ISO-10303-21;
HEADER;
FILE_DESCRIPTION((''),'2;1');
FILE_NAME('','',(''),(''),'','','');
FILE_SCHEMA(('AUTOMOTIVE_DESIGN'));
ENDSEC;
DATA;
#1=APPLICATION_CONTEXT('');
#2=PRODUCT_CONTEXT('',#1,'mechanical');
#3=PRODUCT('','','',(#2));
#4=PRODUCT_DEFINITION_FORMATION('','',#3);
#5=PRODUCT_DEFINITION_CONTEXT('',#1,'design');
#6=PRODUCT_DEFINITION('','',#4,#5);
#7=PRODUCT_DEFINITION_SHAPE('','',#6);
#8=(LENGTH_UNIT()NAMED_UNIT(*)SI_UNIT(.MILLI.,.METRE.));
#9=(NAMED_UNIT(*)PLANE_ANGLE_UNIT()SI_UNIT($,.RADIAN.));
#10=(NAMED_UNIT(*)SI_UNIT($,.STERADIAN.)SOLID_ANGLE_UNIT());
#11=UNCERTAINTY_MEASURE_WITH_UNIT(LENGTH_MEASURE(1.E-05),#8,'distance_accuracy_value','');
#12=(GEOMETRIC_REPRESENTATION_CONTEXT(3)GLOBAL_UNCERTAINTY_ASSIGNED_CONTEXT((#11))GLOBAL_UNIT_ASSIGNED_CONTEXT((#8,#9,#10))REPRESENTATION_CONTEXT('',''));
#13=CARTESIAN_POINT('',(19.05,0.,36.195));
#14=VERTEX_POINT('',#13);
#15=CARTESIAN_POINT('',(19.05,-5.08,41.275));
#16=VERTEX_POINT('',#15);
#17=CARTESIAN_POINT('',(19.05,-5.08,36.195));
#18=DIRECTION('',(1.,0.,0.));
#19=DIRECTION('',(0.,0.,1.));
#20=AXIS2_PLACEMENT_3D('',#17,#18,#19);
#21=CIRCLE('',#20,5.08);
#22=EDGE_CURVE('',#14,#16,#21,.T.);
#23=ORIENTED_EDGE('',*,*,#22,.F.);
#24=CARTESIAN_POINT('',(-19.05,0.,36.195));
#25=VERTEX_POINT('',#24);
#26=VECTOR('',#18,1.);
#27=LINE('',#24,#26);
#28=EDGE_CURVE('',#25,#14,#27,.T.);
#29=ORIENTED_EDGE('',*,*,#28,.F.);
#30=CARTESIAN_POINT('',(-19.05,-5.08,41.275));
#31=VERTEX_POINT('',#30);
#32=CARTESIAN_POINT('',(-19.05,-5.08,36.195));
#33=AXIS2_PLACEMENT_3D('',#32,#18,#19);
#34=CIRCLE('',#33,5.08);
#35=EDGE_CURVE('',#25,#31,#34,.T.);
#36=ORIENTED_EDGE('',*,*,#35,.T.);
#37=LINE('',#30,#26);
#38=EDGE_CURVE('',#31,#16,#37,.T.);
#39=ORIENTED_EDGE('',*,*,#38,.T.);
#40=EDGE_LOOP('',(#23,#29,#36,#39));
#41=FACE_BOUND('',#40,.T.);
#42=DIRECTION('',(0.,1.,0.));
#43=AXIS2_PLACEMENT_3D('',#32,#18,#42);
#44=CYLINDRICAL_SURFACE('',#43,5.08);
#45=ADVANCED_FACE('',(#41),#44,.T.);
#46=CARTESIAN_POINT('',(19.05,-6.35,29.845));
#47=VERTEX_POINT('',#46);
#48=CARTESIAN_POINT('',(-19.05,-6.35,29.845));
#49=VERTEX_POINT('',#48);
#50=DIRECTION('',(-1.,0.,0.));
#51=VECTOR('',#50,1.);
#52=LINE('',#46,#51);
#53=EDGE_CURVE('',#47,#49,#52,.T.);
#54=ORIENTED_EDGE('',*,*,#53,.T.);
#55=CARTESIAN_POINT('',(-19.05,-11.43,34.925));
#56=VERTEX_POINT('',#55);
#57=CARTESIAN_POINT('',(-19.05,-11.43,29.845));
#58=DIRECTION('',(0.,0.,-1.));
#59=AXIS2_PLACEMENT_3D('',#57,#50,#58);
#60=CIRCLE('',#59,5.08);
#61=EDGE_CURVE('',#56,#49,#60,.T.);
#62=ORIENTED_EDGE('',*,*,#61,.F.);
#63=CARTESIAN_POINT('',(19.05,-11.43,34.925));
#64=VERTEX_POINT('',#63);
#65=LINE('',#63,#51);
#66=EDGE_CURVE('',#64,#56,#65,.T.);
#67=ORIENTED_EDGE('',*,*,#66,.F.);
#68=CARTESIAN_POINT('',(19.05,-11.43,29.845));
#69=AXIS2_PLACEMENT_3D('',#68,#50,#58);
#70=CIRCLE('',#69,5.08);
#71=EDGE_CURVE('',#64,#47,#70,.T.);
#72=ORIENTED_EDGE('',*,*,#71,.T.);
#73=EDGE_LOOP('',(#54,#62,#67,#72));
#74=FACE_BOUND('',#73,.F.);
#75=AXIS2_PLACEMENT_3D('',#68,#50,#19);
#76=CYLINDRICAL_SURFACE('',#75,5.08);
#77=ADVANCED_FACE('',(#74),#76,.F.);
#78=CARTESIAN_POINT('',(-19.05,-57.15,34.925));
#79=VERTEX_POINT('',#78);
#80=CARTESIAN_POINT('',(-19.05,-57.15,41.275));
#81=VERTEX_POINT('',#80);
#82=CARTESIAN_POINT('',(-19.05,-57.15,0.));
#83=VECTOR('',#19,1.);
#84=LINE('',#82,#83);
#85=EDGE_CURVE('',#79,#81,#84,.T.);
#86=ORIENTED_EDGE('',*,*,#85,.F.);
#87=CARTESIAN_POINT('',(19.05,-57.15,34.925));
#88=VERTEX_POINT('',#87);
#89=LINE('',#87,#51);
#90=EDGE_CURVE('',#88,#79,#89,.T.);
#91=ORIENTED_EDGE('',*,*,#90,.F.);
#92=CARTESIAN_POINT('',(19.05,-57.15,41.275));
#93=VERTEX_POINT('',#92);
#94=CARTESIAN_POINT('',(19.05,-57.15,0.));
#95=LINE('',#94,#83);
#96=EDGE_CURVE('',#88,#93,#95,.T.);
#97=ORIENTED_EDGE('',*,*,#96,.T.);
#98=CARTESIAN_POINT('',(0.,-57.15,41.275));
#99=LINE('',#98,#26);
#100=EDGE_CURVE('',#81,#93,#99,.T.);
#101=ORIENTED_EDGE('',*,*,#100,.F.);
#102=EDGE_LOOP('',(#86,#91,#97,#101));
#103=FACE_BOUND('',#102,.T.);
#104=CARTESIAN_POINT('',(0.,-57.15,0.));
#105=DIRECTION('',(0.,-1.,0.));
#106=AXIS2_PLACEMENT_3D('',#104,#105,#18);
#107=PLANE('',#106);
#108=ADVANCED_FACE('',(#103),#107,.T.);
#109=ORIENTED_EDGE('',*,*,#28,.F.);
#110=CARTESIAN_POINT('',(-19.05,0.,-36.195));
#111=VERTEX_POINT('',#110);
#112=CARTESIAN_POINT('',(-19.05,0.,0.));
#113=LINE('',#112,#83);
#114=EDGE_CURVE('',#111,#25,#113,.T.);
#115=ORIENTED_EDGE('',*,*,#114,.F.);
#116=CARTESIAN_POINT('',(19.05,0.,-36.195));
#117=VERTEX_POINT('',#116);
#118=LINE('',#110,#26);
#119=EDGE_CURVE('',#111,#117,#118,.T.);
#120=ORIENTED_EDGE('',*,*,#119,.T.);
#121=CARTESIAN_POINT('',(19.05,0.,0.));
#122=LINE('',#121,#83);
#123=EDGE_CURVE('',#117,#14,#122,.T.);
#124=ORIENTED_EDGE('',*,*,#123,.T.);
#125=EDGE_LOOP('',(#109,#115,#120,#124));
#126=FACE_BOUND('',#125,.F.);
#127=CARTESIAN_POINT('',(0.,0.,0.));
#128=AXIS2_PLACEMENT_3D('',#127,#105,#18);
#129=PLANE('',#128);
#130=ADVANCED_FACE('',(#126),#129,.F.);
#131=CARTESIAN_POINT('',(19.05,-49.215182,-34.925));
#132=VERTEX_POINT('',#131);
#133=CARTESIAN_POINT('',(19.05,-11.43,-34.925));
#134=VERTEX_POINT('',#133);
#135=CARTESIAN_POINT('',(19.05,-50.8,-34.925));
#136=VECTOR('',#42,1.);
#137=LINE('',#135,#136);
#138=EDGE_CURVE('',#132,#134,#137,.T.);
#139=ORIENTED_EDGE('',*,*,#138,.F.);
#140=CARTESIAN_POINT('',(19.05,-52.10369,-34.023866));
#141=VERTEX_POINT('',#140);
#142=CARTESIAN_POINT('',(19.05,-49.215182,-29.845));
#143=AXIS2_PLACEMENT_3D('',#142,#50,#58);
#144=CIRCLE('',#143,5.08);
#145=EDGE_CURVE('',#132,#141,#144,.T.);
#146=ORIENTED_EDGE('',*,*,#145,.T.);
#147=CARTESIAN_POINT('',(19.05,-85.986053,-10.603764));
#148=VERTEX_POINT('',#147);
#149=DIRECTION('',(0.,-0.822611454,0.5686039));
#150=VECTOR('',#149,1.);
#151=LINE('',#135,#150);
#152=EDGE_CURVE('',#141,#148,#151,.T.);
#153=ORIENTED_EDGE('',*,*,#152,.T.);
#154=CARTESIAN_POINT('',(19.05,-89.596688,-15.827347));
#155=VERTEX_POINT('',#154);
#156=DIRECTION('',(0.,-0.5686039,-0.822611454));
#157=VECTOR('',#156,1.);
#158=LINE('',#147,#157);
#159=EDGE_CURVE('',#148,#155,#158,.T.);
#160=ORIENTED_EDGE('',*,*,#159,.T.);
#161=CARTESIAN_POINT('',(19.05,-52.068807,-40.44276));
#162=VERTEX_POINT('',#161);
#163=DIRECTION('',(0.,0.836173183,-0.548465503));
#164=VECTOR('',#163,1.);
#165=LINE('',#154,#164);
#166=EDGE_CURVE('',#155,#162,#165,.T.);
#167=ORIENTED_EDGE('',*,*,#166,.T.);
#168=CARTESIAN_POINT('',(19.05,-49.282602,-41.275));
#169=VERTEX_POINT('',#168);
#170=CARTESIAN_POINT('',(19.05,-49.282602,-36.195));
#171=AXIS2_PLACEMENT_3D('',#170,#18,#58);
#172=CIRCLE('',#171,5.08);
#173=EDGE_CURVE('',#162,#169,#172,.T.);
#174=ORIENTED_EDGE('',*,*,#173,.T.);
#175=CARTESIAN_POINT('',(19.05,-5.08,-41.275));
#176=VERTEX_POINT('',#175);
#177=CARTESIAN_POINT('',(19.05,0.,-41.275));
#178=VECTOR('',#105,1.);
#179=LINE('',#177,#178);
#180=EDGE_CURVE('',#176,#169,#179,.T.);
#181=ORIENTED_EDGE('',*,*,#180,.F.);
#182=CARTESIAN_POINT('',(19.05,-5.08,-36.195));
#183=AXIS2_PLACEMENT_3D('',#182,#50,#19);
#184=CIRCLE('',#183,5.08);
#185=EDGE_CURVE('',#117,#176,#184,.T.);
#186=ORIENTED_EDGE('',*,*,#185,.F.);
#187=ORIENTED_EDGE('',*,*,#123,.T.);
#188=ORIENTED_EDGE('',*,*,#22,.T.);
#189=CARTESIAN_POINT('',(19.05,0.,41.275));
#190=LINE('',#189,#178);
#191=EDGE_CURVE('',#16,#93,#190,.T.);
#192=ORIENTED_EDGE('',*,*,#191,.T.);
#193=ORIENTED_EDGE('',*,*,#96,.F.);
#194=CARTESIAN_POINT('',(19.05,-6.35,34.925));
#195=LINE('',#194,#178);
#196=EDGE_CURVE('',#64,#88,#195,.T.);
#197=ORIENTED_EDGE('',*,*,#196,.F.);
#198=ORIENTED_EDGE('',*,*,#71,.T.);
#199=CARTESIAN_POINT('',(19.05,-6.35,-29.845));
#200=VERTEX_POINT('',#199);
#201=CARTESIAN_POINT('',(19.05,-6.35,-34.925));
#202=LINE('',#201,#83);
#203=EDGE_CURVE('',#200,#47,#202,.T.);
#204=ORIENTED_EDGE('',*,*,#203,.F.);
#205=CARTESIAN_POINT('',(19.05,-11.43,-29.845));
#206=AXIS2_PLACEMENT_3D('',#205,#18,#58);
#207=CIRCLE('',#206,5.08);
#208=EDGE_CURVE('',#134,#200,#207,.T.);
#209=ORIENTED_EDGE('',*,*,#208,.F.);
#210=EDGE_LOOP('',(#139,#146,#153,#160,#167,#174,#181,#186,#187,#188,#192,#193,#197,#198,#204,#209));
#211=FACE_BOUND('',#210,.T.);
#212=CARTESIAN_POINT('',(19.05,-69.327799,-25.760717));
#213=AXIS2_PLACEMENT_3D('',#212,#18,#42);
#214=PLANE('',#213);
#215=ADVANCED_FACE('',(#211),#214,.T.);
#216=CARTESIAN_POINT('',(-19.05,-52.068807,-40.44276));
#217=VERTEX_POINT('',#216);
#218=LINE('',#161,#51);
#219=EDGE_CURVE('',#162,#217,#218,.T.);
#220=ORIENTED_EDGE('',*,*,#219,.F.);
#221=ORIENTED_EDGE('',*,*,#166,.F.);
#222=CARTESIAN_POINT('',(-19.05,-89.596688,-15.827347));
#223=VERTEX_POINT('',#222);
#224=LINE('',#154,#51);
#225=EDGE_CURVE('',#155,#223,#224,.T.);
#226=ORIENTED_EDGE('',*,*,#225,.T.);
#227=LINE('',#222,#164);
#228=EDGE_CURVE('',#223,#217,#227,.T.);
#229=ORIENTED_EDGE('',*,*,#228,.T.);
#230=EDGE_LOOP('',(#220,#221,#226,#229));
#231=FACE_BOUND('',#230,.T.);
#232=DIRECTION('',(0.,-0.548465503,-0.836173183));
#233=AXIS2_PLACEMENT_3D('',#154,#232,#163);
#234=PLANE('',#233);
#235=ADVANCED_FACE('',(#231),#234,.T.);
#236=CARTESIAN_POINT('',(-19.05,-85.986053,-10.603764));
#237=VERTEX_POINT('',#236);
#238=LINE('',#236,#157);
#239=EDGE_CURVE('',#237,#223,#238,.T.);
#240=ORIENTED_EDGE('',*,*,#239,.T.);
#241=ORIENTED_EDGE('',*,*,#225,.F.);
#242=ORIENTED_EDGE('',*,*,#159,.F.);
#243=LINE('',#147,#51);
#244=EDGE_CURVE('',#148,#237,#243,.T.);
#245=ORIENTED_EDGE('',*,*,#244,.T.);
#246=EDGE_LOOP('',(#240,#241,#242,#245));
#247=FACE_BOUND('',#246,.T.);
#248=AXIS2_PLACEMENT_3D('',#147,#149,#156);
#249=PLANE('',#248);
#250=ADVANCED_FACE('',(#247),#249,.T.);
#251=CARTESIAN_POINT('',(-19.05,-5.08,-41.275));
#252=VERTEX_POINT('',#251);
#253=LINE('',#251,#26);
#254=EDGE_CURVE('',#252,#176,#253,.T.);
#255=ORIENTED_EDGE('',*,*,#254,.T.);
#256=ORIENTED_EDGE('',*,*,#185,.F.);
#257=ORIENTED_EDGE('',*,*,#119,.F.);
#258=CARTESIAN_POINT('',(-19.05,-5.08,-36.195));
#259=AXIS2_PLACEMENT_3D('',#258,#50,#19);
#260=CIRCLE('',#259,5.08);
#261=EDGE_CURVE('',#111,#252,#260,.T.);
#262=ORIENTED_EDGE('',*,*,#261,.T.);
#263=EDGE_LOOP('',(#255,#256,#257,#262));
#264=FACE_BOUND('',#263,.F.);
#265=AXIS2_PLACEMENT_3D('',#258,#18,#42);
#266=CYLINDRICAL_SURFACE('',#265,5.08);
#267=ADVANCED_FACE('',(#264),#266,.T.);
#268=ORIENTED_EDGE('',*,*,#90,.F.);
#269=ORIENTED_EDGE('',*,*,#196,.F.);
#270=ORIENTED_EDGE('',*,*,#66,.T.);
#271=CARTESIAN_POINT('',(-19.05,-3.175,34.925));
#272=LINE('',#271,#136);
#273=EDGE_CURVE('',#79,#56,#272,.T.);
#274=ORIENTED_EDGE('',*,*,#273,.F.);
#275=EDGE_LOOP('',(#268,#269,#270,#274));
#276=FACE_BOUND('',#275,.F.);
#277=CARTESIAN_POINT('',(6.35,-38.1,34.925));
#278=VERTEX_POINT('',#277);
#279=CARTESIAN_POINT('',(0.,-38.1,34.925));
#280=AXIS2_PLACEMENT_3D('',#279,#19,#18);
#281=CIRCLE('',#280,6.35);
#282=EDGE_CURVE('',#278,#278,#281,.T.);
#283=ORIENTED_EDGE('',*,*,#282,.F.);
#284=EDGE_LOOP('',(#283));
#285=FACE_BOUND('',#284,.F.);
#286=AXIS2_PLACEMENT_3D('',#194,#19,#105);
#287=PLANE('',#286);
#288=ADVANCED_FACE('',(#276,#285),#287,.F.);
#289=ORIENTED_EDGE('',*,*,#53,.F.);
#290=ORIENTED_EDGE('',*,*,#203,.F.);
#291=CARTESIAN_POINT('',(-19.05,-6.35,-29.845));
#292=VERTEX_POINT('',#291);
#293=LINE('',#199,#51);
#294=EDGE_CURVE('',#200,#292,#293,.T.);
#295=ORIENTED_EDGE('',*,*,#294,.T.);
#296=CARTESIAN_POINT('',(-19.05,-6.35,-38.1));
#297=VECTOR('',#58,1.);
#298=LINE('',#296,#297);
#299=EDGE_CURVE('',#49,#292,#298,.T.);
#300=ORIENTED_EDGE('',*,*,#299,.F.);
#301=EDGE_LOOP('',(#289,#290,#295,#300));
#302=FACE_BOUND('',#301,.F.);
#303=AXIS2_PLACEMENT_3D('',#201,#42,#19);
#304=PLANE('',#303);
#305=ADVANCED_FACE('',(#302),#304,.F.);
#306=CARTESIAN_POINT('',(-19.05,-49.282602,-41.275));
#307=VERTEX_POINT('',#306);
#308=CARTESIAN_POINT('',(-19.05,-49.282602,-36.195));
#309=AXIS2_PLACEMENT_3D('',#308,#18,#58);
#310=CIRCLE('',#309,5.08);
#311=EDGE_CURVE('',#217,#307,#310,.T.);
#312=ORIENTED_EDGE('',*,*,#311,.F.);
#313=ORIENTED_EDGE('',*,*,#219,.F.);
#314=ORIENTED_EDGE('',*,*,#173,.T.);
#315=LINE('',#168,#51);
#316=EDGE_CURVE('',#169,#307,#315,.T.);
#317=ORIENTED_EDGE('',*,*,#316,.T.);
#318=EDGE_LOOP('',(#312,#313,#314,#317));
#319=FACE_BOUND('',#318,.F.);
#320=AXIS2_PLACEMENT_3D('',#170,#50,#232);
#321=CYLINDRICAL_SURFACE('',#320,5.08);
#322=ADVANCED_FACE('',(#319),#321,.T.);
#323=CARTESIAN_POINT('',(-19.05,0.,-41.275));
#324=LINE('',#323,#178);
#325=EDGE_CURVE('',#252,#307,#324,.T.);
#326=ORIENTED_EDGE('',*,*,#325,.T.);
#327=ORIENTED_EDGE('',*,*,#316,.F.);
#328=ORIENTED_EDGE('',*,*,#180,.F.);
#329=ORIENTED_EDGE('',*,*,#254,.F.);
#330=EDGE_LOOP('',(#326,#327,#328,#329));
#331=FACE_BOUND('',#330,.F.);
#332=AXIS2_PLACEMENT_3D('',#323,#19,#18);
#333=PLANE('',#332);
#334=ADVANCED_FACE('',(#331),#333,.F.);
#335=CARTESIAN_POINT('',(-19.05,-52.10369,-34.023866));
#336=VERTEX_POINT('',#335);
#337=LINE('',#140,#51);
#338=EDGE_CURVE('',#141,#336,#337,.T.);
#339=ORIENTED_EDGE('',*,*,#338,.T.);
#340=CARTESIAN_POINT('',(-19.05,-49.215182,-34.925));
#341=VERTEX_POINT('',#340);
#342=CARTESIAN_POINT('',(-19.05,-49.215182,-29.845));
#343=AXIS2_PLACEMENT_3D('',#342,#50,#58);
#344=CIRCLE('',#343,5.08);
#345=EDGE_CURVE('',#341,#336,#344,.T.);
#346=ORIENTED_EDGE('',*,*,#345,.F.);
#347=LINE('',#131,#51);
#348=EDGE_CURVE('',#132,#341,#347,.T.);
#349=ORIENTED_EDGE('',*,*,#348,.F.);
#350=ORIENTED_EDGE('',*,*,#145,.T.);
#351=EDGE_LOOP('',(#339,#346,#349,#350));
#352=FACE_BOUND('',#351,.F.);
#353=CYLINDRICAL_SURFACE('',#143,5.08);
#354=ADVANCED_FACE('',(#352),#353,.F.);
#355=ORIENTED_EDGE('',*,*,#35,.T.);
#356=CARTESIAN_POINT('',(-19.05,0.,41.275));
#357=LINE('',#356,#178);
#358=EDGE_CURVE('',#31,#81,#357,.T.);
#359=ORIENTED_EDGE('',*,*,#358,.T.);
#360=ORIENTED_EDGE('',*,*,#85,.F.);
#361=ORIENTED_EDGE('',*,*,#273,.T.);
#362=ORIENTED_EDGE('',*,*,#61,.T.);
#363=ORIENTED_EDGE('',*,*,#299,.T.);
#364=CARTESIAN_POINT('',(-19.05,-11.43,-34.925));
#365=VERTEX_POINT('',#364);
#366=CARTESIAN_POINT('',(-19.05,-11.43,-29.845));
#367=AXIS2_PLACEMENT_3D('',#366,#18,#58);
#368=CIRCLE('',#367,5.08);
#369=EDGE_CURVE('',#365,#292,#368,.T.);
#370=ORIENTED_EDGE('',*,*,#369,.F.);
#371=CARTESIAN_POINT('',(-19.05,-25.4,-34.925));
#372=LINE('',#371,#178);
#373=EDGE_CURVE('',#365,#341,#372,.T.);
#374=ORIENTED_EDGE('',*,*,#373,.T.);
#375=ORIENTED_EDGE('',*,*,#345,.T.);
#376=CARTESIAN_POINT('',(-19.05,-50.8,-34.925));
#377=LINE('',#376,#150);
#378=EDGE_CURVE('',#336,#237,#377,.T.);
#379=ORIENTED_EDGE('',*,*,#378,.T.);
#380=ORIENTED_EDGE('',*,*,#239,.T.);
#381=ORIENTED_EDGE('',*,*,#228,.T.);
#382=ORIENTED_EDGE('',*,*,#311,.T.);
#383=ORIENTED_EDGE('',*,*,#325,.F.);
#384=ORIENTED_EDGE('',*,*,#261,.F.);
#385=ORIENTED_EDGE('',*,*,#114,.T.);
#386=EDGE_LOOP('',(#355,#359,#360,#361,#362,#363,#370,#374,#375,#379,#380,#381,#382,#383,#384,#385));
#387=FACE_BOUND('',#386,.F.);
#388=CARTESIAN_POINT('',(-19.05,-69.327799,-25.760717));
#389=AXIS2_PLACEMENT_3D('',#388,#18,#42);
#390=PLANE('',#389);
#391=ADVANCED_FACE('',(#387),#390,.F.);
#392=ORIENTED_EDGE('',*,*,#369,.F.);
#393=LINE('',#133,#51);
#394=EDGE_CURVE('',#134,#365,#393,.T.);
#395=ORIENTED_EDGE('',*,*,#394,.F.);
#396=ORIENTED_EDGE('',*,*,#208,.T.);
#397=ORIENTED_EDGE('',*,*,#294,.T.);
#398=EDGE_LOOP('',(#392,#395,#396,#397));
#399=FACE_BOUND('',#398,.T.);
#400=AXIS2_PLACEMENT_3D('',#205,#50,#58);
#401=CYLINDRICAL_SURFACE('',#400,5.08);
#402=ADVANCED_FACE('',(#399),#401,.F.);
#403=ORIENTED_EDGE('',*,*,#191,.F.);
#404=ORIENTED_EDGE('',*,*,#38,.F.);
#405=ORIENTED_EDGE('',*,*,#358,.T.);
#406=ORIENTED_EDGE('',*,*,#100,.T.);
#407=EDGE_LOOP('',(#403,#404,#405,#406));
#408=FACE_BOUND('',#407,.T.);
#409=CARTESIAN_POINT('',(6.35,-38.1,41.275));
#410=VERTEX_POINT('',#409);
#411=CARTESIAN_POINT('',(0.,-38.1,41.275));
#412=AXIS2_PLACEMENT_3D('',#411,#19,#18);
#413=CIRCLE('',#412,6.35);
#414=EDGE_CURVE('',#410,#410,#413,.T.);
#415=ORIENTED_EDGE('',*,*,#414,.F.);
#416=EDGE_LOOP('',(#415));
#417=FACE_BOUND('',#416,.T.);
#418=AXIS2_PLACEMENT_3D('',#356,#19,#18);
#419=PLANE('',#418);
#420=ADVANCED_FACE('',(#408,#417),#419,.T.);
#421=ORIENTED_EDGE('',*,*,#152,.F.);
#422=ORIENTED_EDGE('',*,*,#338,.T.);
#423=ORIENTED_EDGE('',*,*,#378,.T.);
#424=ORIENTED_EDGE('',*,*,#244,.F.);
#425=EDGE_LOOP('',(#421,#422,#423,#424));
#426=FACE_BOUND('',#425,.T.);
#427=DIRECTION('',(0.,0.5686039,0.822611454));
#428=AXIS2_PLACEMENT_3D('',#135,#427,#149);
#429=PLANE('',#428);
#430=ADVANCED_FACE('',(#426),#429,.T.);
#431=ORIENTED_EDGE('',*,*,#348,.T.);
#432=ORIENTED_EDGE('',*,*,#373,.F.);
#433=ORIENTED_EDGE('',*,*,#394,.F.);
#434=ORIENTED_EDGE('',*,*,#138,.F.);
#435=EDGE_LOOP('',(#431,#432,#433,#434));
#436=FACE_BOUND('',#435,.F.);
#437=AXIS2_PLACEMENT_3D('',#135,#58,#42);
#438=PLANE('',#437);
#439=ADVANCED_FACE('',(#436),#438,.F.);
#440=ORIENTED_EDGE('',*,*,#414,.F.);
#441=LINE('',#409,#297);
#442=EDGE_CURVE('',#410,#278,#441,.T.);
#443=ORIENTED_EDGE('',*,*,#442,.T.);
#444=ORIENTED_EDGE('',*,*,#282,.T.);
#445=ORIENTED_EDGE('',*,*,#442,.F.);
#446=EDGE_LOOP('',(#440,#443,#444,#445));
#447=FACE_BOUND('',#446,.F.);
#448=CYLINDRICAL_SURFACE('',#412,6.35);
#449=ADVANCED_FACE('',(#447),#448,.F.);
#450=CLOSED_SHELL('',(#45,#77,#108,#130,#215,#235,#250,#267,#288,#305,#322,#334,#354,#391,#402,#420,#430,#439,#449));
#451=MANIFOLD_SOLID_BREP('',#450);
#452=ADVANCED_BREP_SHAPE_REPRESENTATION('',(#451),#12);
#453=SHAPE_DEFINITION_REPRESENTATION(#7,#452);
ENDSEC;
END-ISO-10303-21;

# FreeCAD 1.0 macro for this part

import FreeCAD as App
import Part
import Sketcher
Q = App.Units.Quantity


def edges_at(feature, points):
    """Names of the edges that pass closest to the given points."""
    edges = feature.Shape.Edges
    near = lambda p: min(range(len(edges)), key=lambda i: edges[i].distToShape(Part.Vertex(*p))[0])
    return sorted({f"Edge{near(p) + 1}" for p in points})


def add_polygon(sketch, points):
    """Adds a closed chain of lines whose ends are joined by coincident constraints."""
    first, n = sketch.GeometryCount, len(points)
    for a, b in zip(points, points[1:] + points[:1]):
        sketch.addGeometry(Part.LineSegment(App.Vector(*a, 0), App.Vector(*b, 0)), False)
    for i in range(n):
        sketch.addConstraint(Sketcher.Constraint("Coincident", first + i, 2, first + (i + 1) % n, 1))

doc = App.newDocument("Part")
body = doc.addObject("PartDesign::Body", "Body")

# Sketch on XZ plane
sketch1 = body.newObject("Sketcher::SketchObject", "Sketch")
sketch1.AttachmentSupport = (doc.getObject("XZ_Plane"), [""])
sketch1.MapMode = "FlatFace"
add_polygon(sketch1, [(-19, 41), (-19, -41), (19, -41), (19, 41)])  # lines 0-3
sketch1.addConstraint(Sketcher.Constraint("Vertical", 0))
sketch1.addConstraint(Sketcher.Constraint("Horizontal", 1))
sketch1.addConstraint(Sketcher.Constraint("Vertical", 2))
sketch1.addConstraint(Sketcher.Constraint("Horizontal", 3))
sketch1.addConstraint(Sketcher.Constraint("Symmetric", 0, 2, 2, 2, -1, 1))
sketch1.addConstraint(Sketcher.Constraint("DistanceX", 1, 1, 1, 2, Q("1.5 in")))
sketch1.addConstraint(Sketcher.Constraint("DistanceY", 0, 2, 0, 1, Q("3.25 in")))
pad1 = body.newObject("PartDesign::Pad", "Pad")
pad1.Profile = sketch1
pad1.Length = Q("2.25 in")

# Sketch on YZ plane
sketch2 = body.newObject("Sketcher::SketchObject", "Sketch001")
sketch2.AttachmentSupport = (doc.getObject("YZ_Plane"), [""])
sketch2.MapMode = "FlatFace"
sketch2.AttachmentOffset = App.Placement(App.Vector(0, 0, 0.75 * 25.4), App.Rotation())
add_polygon(sketch2, [(-6, 35), (-57, 35), (-57, -41), (-51, -41), (-51, -35), (-6, -35)])  # lines 0-5
sketch2.addConstraint(Sketcher.Constraint("Horizontal", 0))
sketch2.addConstraint(Sketcher.Constraint("Vertical", 1))
sketch2.addConstraint(Sketcher.Constraint("Horizontal", 2))
sketch2.addConstraint(Sketcher.Constraint("Vertical", 3))
sketch2.addConstraint(Sketcher.Constraint("Horizontal", 4))
sketch2.addConstraint(Sketcher.Constraint("Vertical", 5))
sketch2.addConstraint(Sketcher.Constraint("Equal", 2, 3))
sketch2.addConstraint(Sketcher.Constraint("DistanceX", 0, 2, 0, 1, Q("2 in")))
sketch2.addConstraint(Sketcher.Constraint("DistanceY", 1, 2, 1, 1, Q("3 in")))
sketch2.addConstraint(Sketcher.Constraint("DistanceX", 2, 2, -1, 1, Q("2 in")))
sketch2.addConstraint(Sketcher.Constraint("DistanceX", 2, 1, 2, 2, Q("0.25 in")))
sketch2.addConstraint(Sketcher.Constraint("DistanceY", -1, 1, 0, 2, Q("1.375 in")))
pocket1 = body.newObject("PartDesign::Pocket", "Pocket")
pocket1.Profile = sketch2
pocket1.Length = Q("1.89 in")

# Sketch on YZ plane
sketch3 = body.newObject("Sketcher::SketchObject", "Sketch002")
sketch3.AttachmentSupport = (doc.getObject("YZ_Plane"), [""])
sketch3.MapMode = "FlatFace"
sketch3.AttachmentOffset = App.Placement(App.Vector(0, 0, 0.75 * 25.4), App.Rotation())
add_polygon(sketch3, [(-51, -41), (-51, -35), (-86, -11), (-90, -16)])  # lines 0-3
sketch3.addConstraint(Sketcher.Constraint("Vertical", 0))
sketch3.addConstraint(Sketcher.Constraint("Perpendicular", 1, 2))
sketch3.addConstraint(Sketcher.Constraint("DistanceX", 0, 2, -1, 1, Q("2 in")))
sketch3.addConstraint(Sketcher.Constraint("DistanceY", 0, 1, 0, 2, Q("0.25 in")))
sketch3.addConstraint(Sketcher.Constraint("Distance", 2, Q("0.25 in")))
sketch3.addConstraint(Sketcher.Constraint("Distance", 1, Q("1.684 in")))
sketch3.addConstraint(Sketcher.Constraint("DistanceY", 0, 2, -1, 1, Q("1.375 in")))
sketch3.addConstraint(Sketcher.Constraint("Distance", 3, 46.39791))
pad2 = body.newObject("PartDesign::Pad", "Pad001")
pad2.Profile = sketch3
pad2.Length = Q("1.5 in")
pad2.Reversed = True
doc.recompute()

fillet = body.newObject("PartDesign::Fillet", "Fillet")
fillet.Base = (pad2, edges_at(pad2, [(0, 0, 41.275)]))
fillet.Radius = Q("0.2 in")
doc.recompute()

fillet2 = body.newObject("PartDesign::Fillet", "Fillet001")
fillet2.Base = (fillet, edges_at(fillet, [(0, -6.35, 34.925)]))
fillet2.Radius = Q("0.2 in")
doc.recompute()

fillet3 = body.newObject("PartDesign::Fillet", "Fillet002")
fillet3.Base = (fillet2, edges_at(fillet2, [(0, 0, -41.275)]))
fillet3.Radius = Q("0.2 in")
doc.recompute()

fillet4 = body.newObject("PartDesign::Fillet", "Fillet003")
fillet4.Base = (fillet3, edges_at(fillet3, [(0, -6.35, -34.925)]))
fillet4.Radius = Q("0.2 in")
doc.recompute()

fillet5 = body.newObject("PartDesign::Fillet", "Fillet004")
fillet5.Base = (fillet4, edges_at(fillet4, [(0, -50.8, -34.925), (0, -50.8, -41.275)]))
fillet5.Radius = Q("0.2 in")

# Sketch on XY plane
sketch4 = body.newObject("Sketcher::SketchObject", "Sketch003")
sketch4.AttachmentSupport = (doc.getObject("XY_Plane"), [""])
sketch4.MapMode = "FlatFace"
sketch4.AttachmentOffset = App.Placement(App.Vector(0, 0, 1.625 * 25.4), App.Rotation())
sketch4.addGeometry(Part.Circle(App.Vector(0, -38, 0), App.Vector(0, 0, 1), 6), False)
sketch4.addConstraint(Sketcher.Constraint("PointOnObject", 0, 3, -2))
sketch4.addConstraint(Sketcher.Constraint("Diameter", 0, Q("0.5 in")))
sketch4.addConstraint(Sketcher.Constraint("DistanceY", 0, 3, -1, 1, Q("1.5 in")))
pocket2 = body.newObject("PartDesign::Pocket", "Pocket001")
pocket2.Profile = sketch4
pocket2.Length = Q("1 in")

doc.recompute()
